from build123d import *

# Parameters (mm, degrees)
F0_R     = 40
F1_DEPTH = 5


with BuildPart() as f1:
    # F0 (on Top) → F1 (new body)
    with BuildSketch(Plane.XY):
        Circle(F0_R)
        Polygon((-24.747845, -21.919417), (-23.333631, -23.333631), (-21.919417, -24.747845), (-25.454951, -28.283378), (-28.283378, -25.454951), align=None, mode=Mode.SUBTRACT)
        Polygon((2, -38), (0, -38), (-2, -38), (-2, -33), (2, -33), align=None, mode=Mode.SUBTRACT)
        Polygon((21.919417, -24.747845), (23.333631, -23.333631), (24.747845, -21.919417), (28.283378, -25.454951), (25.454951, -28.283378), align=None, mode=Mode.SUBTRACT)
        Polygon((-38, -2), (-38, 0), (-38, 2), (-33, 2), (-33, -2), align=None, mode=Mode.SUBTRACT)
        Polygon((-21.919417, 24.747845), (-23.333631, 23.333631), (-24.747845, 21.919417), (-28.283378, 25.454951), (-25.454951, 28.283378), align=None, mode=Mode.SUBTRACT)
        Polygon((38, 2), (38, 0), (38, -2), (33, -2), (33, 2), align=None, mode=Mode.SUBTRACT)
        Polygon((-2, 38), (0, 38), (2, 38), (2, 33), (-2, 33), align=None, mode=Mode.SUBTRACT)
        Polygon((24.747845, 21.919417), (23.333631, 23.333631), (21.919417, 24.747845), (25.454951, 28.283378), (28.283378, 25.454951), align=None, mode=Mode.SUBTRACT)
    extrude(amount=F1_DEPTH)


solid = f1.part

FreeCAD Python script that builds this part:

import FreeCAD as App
import Part
import Sketcher

doc = App.newDocument("Part")
params = doc.addObject("Spreadsheet::Sheet", "Params")
for row, (alias, value) in enumerate([
    ("sketch1_diameter", "80 mm"),
    ("sketch1_width", "4 mm"),
    ("sketch1_width2", "5 mm"),
    ("sketch1_length", "4.999999 mm"),
    ("sketch1_length2", "4.000001 mm"),
    ("pad1_length", "5 mm"),
], start=1):
    params.set(f"A{row}", alias)
    params.set(f"B{row}", "=" + value)
    params.setAlias(f"B{row}", alias)

body = doc.addObject("PartDesign::Body", "Body")

# Sketch on XY plane
sketch1 = body.newObject("Sketcher::SketchObject", "Sketch")
sketch1.AttachmentSupport = (doc.getObject("XY_Plane"), [""])
sketch1.MapMode = "FlatFace"
sketch1.addGeometry([
    Part.Circle(App.Vector(0, 0, 0), App.Vector(0, 0, 1), 40),  # 0
    Part.LineSegment(App.Vector(-28.3, -25.5, 0), App.Vector(-24.7, -21.9, 0)),  # 1
    Part.LineSegment(App.Vector(-24.7, -21.9, 0), App.Vector(-21.9, -24.7, 0)),  # 2
    Part.LineSegment(App.Vector(-21.9, -24.7, 0), App.Vector(-25.5, -28.3, 0)),  # 3
    Part.LineSegment(App.Vector(-25.5, -28.3, 0), App.Vector(-28.3, -25.5, 0)),  # 4
    Part.LineSegment(App.Vector(2, -33, 0), App.Vector(2, -38, 0)),  # 5
    Part.LineSegment(App.Vector(2, -38, 0), App.Vector(-2, -38, 0)),  # 6
    Part.LineSegment(App.Vector(-2, -38, 0), App.Vector(-2, -33, 0)),  # 7
    Part.LineSegment(App.Vector(-2, -33, 0), App.Vector(2, -33, 0)),  # 8
    Part.LineSegment(App.Vector(25.5, -28.3, 0), App.Vector(21.9, -24.7, 0)),  # 9
    Part.LineSegment(App.Vector(21.9, -24.7, 0), App.Vector(24.7, -21.9, 0)),  # 10
    Part.LineSegment(App.Vector(24.7, -21.9, 0), App.Vector(28.3, -25.5, 0)),  # 11
    Part.LineSegment(App.Vector(28.3, -25.5, 0), App.Vector(25.5, -28.3, 0)),  # 12
    Part.LineSegment(App.Vector(-33, -2, 0), App.Vector(-38, -2, 0)),  # 13
    Part.LineSegment(App.Vector(-38, -2, 0), App.Vector(-38, 2, 0)),  # 14
    Part.LineSegment(App.Vector(-38, 2, 0), App.Vector(-33, 2, 0)),  # 15
    Part.LineSegment(App.Vector(-33, 2, 0), App.Vector(-33, -2, 0)),  # 16
    Part.LineSegment(App.Vector(-25.5, 28.3, 0), App.Vector(-21.9, 24.7, 0)),  # 17
    Part.LineSegment(App.Vector(-21.9, 24.7, 0), App.Vector(-24.7, 21.9, 0)),  # 18
    Part.LineSegment(App.Vector(-24.7, 21.9, 0), App.Vector(-28.3, 25.5, 0)),  # 19
    Part.LineSegment(App.Vector(-28.3, 25.5, 0), App.Vector(-25.5, 28.3, 0)),  # 20
    Part.LineSegment(App.Vector(33, 2, 0), App.Vector(38, 2, 0)),  # 21
    Part.LineSegment(App.Vector(38, 2, 0), App.Vector(38, -2, 0)),  # 22
    Part.LineSegment(App.Vector(38, -2, 0), App.Vector(33, -2, 0)),  # 23
    Part.LineSegment(App.Vector(33, -2, 0), App.Vector(33, 2, 0)),  # 24
    Part.LineSegment(App.Vector(-2, 33, 0), App.Vector(-2, 38, 0)),  # 25
    Part.LineSegment(App.Vector(-2, 38, 0), App.Vector(2, 38, 0)),  # 26
    Part.LineSegment(App.Vector(2, 38, 0), App.Vector(2, 33, 0)),  # 27
    Part.LineSegment(App.Vector(2, 33, 0), App.Vector(-2, 33, 0)),  # 28
    Part.LineSegment(App.Vector(28.3, 25.5, 0), App.Vector(24.7, 21.9, 0)),  # 29
    Part.LineSegment(App.Vector(24.7, 21.9, 0), App.Vector(21.9, 24.7, 0)),  # 30
    Part.LineSegment(App.Vector(21.9, 24.7, 0), App.Vector(25.5, 28.3, 0)),  # 31
    Part.LineSegment(App.Vector(25.5, 28.3, 0), App.Vector(28.3, 25.5, 0)),  # 32
], False)
sketch1.addConstraint([
    Sketcher.Constraint("Coincident", 1, 2, 2, 1),
    Sketcher.Constraint("Coincident", 2, 2, 3, 1),
    Sketcher.Constraint("Coincident", 3, 2, 4, 1),
    Sketcher.Constraint("Coincident", 4, 2, 1, 1),
    Sketcher.Constraint("Coincident", 5, 2, 6, 1),
    Sketcher.Constraint("Coincident", 6, 2, 7, 1),
    Sketcher.Constraint("Coincident", 7, 2, 8, 1),
    Sketcher.Constraint("Coincident", 8, 2, 5, 1),
    Sketcher.Constraint("Coincident", 9, 2, 10, 1),
    Sketcher.Constraint("Coincident", 10, 2, 11, 1),
    Sketcher.Constraint("Coincident", 11, 2, 12, 1),
    Sketcher.Constraint("Coincident", 12, 2, 9, 1),
    Sketcher.Constraint("Coincident", 13, 2, 14, 1),
    Sketcher.Constraint("Coincident", 14, 2, 15, 1),
    Sketcher.Constraint("Coincident", 15, 2, 16, 1),
    Sketcher.Constraint("Coincident", 16, 2, 13, 1),
    Sketcher.Constraint("Coincident", 17, 2, 18, 1),
    Sketcher.Constraint("Coincident", 18, 2, 19, 1),
    Sketcher.Constraint("Coincident", 19, 2, 20, 1),
    Sketcher.Constraint("Coincident", 20, 2, 17, 1),
    Sketcher.Constraint("Coincident", 21, 2, 22, 1),
    Sketcher.Constraint("Coincident", 22, 2, 23, 1),
    Sketcher.Constraint("Coincident", 23, 2, 24, 1),
    Sketcher.Constraint("Coincident", 24, 2, 21, 1),
    Sketcher.Constraint("Coincident", 25, 2, 26, 1),
    Sketcher.Constraint("Coincident", 26, 2, 27, 1),
    Sketcher.Constraint("Coincident", 27, 2, 28, 1),
    Sketcher.Constraint("Coincident", 28, 2, 25, 1),
    Sketcher.Constraint("Coincident", 29, 2, 30, 1),
    Sketcher.Constraint("Coincident", 30, 2, 31, 1),
    Sketcher.Constraint("Coincident", 31, 2, 32, 1),
    Sketcher.Constraint("Coincident", 32, 2, 29, 1),
    Sketcher.Constraint("Vertical", 5),
    Sketcher.Constraint("Horizontal", 6),
    Sketcher.Constraint("Vertical", 7),
    Sketcher.Constraint("Horizontal", 8),
    Sketcher.Constraint("Horizontal", 13),
    Sketcher.Constraint("Vertical", 14),
    Sketcher.Constraint("Horizontal", 15),
    Sketcher.Constraint("Vertical", 16),
    Sketcher.Constraint("Horizontal", 21),
    Sketcher.Constraint("Vertical", 22),
    Sketcher.Constraint("Horizontal", 23),
    Sketcher.Constraint("Vertical", 24),
    Sketcher.Constraint("Vertical", 25),
    Sketcher.Constraint("Horizontal", 26),
    Sketcher.Constraint("Vertical", 27),
    Sketcher.Constraint("Horizontal", 28),
    Sketcher.Constraint("Coincident", 0, 3, -1, 1),
    Sketcher.Constraint("Symmetric", 9, 2, 17, 2, -1, 1),
    Sketcher.Constraint("Symmetric", 10, 2, 18, 2, -1, 1),
    Sketcher.Constraint("Symmetric", 11, 2, 19, 2, -1, 1),
    Sketcher.Constraint("Symmetric", 12, 2, 20, 2, -1, 1),
    Sketcher.Constraint("Symmetric", 13, 2, 21, 2, -1, 1),
    Sketcher.Constraint("Symmetric", 15, 2, 23, 2, -1, 1),
    Sketcher.Constraint("Symmetric", 5, 2, 25, 2, -1, 1),
    Sketcher.Constraint("Symmetric", 7, 2, 27, 2, -1, 1),
    Sketcher.Constraint("Symmetric", 1, 2, 29, 2, -1, 1),
    Sketcher.Constraint("Symmetric", 2, 2, 30, 2, -1, 1),
    Sketcher.Constraint("Symmetric", 3, 2, 31, 2, -1, 1),
    Sketcher.Constraint("Symmetric", 4, 2, 32, 2, -1, 1),
    Sketcher.Constraint("Symmetric", 2, 2, 9, 2, -2),
    Sketcher.Constraint("Symmetric", 1, 2, 10, 2, -2),
    Sketcher.Constraint("Symmetric", 4, 2, 11, 2, -2),
    Sketcher.Constraint("Symmetric", 3, 2, 12, 2, -2),
    Sketcher.Constraint("Perpendicular", 1, 2),
    Sketcher.Constraint("Perpendicular", 2, 3),
    Sketcher.Constraint("Perpendicular", 3, 4),
    Sketcher.Constraint("Parallel", 4, 9),
    Sketcher.Constraint("Horizontal", 15, 2, 21, 2),
    Sketcher.Constraint("Vertical", 7, 2, 25, 2),
    Sketcher.Constraint("Equal", 23, 5),
    Sketcher.Constraint("Equal", 28, 14),
    Sketcher.Constraint("Diameter", 0, 80.0),
    Sketcher.Constraint("DistanceX", 6, 2, 6, 1, 4.0),
    Sketcher.Constraint("DistanceX", 13, 2, 13, 1, 5.0),
    Sketcher.Constraint("Distance", 1, 4.999999),
    Sketcher.Constraint("Distance", 2, 4.000001),
    Sketcher.Constraint("DistanceY", 5, 2, -1, 1, 38.0),
    Sketcher.Constraint("DistanceX", 13, 2, -1, 1, 38.0),
    Sketcher.Constraint("DistanceX", 3, 2, -1, 1, 25.454951),
    Sketcher.Constraint("DistanceY", 4, 2, -1, 1, 25.454951),
])
sketch1.setExpression("Constraints[73]", "Params.sketch1_diameter")
sketch1.setExpression("Constraints[74]", "Params.sketch1_width")
sketch1.setExpression("Constraints[75]", "Params.sketch1_width2")
sketch1.setExpression("Constraints[76]", "Params.sketch1_length")
sketch1.setExpression("Constraints[77]", "Params.sketch1_length2")
pad1 = body.newObject("PartDesign::Pad", "Pad")
pad1.Profile = sketch1
pad1.setExpression("Length", "Params.pad1_length")

doc.recompute()
